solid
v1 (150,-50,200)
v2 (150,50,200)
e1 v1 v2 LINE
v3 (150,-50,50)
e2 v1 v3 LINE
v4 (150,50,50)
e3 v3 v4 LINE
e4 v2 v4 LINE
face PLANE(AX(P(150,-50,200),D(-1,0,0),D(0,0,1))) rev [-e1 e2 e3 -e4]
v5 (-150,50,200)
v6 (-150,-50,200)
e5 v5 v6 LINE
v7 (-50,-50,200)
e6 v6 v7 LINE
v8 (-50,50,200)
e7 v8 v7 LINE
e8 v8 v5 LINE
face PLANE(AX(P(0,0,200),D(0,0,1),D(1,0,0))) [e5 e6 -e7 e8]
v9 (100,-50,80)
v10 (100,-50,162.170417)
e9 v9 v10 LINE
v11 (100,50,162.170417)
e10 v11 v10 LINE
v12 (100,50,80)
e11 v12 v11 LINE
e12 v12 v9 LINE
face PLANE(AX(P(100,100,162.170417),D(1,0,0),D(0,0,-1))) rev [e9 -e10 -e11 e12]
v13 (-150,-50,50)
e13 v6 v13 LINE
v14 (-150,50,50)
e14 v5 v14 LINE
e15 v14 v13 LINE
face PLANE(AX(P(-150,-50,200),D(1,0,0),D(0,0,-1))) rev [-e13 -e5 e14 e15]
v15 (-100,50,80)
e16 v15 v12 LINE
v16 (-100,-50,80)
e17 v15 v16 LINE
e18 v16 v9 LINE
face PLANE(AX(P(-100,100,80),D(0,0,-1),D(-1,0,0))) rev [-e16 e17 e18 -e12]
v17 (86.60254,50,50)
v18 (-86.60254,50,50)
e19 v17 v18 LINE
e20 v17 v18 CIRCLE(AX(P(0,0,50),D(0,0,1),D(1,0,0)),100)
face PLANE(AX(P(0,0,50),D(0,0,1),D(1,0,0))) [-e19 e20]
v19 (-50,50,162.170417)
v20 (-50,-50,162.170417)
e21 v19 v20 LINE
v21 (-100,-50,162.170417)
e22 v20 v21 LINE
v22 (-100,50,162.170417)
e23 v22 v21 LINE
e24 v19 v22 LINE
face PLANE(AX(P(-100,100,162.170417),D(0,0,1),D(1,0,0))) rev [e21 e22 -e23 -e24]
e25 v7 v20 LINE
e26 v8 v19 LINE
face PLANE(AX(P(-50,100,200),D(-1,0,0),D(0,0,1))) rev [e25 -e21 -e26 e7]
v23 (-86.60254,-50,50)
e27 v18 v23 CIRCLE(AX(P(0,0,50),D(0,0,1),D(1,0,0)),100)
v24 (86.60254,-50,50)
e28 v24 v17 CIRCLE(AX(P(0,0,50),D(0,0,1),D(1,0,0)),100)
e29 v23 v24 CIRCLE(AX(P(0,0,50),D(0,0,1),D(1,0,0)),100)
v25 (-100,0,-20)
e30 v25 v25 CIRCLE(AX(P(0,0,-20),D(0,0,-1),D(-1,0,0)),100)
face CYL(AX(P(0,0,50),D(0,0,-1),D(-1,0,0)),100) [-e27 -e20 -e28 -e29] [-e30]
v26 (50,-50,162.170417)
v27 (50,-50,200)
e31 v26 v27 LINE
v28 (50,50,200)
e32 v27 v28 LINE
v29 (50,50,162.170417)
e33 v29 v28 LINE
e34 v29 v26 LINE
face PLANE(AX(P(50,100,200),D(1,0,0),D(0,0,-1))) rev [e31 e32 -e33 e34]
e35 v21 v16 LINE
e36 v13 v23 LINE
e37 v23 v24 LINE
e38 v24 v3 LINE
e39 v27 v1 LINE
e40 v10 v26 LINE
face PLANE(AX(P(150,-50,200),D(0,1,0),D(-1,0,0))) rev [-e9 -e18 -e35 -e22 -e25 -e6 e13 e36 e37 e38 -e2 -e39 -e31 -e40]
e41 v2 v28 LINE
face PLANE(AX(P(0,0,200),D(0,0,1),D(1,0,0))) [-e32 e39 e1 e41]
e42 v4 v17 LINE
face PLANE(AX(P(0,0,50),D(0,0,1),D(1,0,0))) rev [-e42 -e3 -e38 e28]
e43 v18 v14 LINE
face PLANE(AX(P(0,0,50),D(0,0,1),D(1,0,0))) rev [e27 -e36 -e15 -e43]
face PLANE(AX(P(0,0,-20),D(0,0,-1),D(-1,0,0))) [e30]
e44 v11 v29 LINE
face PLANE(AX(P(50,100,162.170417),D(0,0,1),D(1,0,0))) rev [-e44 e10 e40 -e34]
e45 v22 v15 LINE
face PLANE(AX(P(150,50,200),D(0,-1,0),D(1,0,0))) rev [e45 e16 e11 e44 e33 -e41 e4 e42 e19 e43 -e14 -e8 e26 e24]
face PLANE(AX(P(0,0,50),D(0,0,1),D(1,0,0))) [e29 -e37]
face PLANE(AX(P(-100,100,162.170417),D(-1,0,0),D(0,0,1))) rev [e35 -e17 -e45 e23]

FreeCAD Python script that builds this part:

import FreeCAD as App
import Part
import Sketcher

doc = App.newDocument("Part")
body = doc.addObject("PartDesign::Body", "Body")

sketch1 = body.newObject("Sketcher::SketchObject", "Sketch")
sketch1.AttachmentSupport = (doc.getObject("XY_Plane"), [""])
sketch1.MapMode = "FlatFace"
sketch1.addGeometry(Part.Circle(App.Vector(0, 0, 0), App.Vector(0, 0, 1), 100), False)
sketch1.addConstraint(Sketcher.Constraint("Coincident", 0, 3, -1, 1))
sketch1.addConstraint(Sketcher.Constraint("Diameter", 0, 200.0))
pad1 = body.newObject("PartDesign::Pad", "Pad")
pad1.Profile = sketch1
pad1.Length = 50

sketch2 = body.newObject("Sketcher::SketchObject", "Sketch001")
sketch2.AttachmentSupport = (doc.getObject("XY_Plane"), [""])
sketch2.MapMode = "FlatFace"
sketch2.AttachmentOffset = App.Placement(App.Vector(0, 0, 50), App.Rotation())
sketch2.addGeometry(Part.LineSegment(App.Vector(-150, 50, 0), App.Vector(-150, -50, 0)), False)
sketch2.addGeometry(Part.LineSegment(App.Vector(-150, -50, 0), App.Vector(150, -50, 0)), False)
sketch2.addGeometry(Part.LineSegment(App.Vector(150, -50, 0), App.Vector(150, 50, 0)), False)
sketch2.addGeometry(Part.LineSegment(App.Vector(150, 50, 0), App.Vector(-150, 50, 0)), False)
sketch2.addConstraint(Sketcher.Constraint("Coincident", 0, 2, 1, 1))
sketch2.addConstraint(Sketcher.Constraint("Coincident", 1, 2, 2, 1))
sketch2.addConstraint(Sketcher.Constraint("Coincident", 2, 2, 3, 1))
sketch2.addConstraint(Sketcher.Constraint("Coincident", 3, 2, 0, 1))
sketch2.addConstraint(Sketcher.Constraint("Vertical", 0))
sketch2.addConstraint(Sketcher.Constraint("Horizontal", 1))
sketch2.addConstraint(Sketcher.Constraint("Vertical", 2))
sketch2.addConstraint(Sketcher.Constraint("Horizontal", 3))
sketch2.addConstraint(Sketcher.Constraint("Symmetric", 0, 2, 2, 2, -1, 1))
sketch2.addConstraint(Sketcher.Constraint("DistanceX", 1, 1, 1, 2, 300.0))
sketch2.addConstraint(Sketcher.Constraint("DistanceY", 0, 2, 0, 1, 100.0))
pad2 = body.newObject("PartDesign::Pad", "Pad001")
pad2.Profile = sketch2
pad2.Length = 150

sketch3 = body.newObject("Sketcher::SketchObject", "Sketch002")
sketch3.AttachmentSupport = (doc.getObject("XZ_Plane"), [""])
sketch3.MapMode = "FlatFace"
sketch3.AttachmentOffset = App.Placement(App.Vector(0, 0, 50), App.Rotation())
sketch3.addGeometry(Part.LineSegment(App.Vector(-50, 162, 0), App.Vector(-100, 162, 0)), False)
sketch3.addGeometry(Part.LineSegment(App.Vector(-100, 162, 0), App.Vector(-100, 80, 0)), False)
sketch3.addGeometry(Part.LineSegment(App.Vector(-100, 80, 0), App.Vector(100, 80, 0)), False)
sketch3.addGeometry(Part.LineSegment(App.Vector(100, 80, 0), App.Vector(100, 162, 0)), False)
sketch3.addGeometry(Part.LineSegment(App.Vector(100, 162, 0), App.Vector(50, 162, 0)), False)
sketch3.addGeometry(Part.LineSegment(App.Vector(50, 162, 0), App.Vector(50, 200, 0)), False)
sketch3.addGeometry(Part.LineSegment(App.Vector(50, 200, 0), App.Vector(-50, 200, 0)), False)
sketch3.addGeometry(Part.LineSegment(App.Vector(-50, 200, 0), App.Vector(-50, 162, 0)), False)
sketch3.addConstraint(Sketcher.Constraint("Coincident", 0, 2, 1, 1))
sketch3.addConstraint(Sketcher.Constraint("Coincident", 1, 2, 2, 1))
sketch3.addConstraint(Sketcher.Constraint("Coincident", 2, 2, 3, 1))
sketch3.addConstraint(Sketcher.Constraint("Coincident", 3, 2, 4, 1))
sketch3.addConstraint(Sketcher.Constraint("Coincident", 4, 2, 5, 1))
sketch3.addConstraint(Sketcher.Constraint("Coincident", 5, 2, 6, 1))
sketch3.addConstraint(Sketcher.Constraint("Coincident", 6, 2, 7, 1))
sketch3.addConstraint(Sketcher.Constraint("Coincident", 7, 2, 0, 1))
sketch3.addConstraint(Sketcher.Constraint("Horizontal", 0))
sketch3.addConstraint(Sketcher.Constraint("Vertical", 1))
sketch3.addConstraint(Sketcher.Constraint("Horizontal", 2))
sketch3.addConstraint(Sketcher.Constraint("Vertical", 3))
sketch3.addConstraint(Sketcher.Constraint("Horizontal", 4))
sketch3.addConstraint(Sketcher.Constraint("Vertical", 5))
sketch3.addConstraint(Sketcher.Constraint("Horizontal", 6))
sketch3.addConstraint(Sketcher.Constraint("Vertical", 7))
sketch3.addConstraint(Sketcher.Constraint("Symmetric", 0, 2, 3, 2, -2))
sketch3.addConstraint(Sketcher.Constraint("Equal", 0, 4))
sketch3.addConstraint(Sketcher.Constraint("DistanceX", 0, 2, 0, 1, 50.0))
sketch3.addConstraint(Sketcher.Constraint("DistanceX", 2, 1, 2, 2, 200.0))
sketch3.addConstraint(Sketcher.Constraint("DistanceY", -1, 1, 1, 2, 80.0))
sketch3.addConstraint(Sketcher.Constraint("DistanceY", -1, 1, 5, 2, 200.0))
sketch3.addConstraint(Sketcher.Constraint("DistanceY", 1, 2, 1, 1, 82.170417))
pocket1 = body.newObject("PartDesign::Pocket", "Pocket")
pocket1.Profile = sketch3
pocket1.Length = 150

sketch4 = body.newObject("Sketcher::SketchObject", "Sketch003")
sketch4.AttachmentSupport = (doc.getObject("XY_Plane"), [""])
sketch4.MapMode = "FlatFace"
sketch4.addGeometry(Part.Circle(App.Vector(0, 0, 0), App.Vector(0, 0, 1), 100), False)
sketch4.addConstraint(Sketcher.Constraint("Coincident", 0, 3, -1, 1))
sketch4.addConstraint(Sketcher.Constraint("Diameter", 0, 200.0))
pad3 = body.newObject("PartDesign::Pad", "Pad002")
pad3.Profile = sketch4
pad3.Length = 20
pad3.Reversed = True

doc.recompute()
